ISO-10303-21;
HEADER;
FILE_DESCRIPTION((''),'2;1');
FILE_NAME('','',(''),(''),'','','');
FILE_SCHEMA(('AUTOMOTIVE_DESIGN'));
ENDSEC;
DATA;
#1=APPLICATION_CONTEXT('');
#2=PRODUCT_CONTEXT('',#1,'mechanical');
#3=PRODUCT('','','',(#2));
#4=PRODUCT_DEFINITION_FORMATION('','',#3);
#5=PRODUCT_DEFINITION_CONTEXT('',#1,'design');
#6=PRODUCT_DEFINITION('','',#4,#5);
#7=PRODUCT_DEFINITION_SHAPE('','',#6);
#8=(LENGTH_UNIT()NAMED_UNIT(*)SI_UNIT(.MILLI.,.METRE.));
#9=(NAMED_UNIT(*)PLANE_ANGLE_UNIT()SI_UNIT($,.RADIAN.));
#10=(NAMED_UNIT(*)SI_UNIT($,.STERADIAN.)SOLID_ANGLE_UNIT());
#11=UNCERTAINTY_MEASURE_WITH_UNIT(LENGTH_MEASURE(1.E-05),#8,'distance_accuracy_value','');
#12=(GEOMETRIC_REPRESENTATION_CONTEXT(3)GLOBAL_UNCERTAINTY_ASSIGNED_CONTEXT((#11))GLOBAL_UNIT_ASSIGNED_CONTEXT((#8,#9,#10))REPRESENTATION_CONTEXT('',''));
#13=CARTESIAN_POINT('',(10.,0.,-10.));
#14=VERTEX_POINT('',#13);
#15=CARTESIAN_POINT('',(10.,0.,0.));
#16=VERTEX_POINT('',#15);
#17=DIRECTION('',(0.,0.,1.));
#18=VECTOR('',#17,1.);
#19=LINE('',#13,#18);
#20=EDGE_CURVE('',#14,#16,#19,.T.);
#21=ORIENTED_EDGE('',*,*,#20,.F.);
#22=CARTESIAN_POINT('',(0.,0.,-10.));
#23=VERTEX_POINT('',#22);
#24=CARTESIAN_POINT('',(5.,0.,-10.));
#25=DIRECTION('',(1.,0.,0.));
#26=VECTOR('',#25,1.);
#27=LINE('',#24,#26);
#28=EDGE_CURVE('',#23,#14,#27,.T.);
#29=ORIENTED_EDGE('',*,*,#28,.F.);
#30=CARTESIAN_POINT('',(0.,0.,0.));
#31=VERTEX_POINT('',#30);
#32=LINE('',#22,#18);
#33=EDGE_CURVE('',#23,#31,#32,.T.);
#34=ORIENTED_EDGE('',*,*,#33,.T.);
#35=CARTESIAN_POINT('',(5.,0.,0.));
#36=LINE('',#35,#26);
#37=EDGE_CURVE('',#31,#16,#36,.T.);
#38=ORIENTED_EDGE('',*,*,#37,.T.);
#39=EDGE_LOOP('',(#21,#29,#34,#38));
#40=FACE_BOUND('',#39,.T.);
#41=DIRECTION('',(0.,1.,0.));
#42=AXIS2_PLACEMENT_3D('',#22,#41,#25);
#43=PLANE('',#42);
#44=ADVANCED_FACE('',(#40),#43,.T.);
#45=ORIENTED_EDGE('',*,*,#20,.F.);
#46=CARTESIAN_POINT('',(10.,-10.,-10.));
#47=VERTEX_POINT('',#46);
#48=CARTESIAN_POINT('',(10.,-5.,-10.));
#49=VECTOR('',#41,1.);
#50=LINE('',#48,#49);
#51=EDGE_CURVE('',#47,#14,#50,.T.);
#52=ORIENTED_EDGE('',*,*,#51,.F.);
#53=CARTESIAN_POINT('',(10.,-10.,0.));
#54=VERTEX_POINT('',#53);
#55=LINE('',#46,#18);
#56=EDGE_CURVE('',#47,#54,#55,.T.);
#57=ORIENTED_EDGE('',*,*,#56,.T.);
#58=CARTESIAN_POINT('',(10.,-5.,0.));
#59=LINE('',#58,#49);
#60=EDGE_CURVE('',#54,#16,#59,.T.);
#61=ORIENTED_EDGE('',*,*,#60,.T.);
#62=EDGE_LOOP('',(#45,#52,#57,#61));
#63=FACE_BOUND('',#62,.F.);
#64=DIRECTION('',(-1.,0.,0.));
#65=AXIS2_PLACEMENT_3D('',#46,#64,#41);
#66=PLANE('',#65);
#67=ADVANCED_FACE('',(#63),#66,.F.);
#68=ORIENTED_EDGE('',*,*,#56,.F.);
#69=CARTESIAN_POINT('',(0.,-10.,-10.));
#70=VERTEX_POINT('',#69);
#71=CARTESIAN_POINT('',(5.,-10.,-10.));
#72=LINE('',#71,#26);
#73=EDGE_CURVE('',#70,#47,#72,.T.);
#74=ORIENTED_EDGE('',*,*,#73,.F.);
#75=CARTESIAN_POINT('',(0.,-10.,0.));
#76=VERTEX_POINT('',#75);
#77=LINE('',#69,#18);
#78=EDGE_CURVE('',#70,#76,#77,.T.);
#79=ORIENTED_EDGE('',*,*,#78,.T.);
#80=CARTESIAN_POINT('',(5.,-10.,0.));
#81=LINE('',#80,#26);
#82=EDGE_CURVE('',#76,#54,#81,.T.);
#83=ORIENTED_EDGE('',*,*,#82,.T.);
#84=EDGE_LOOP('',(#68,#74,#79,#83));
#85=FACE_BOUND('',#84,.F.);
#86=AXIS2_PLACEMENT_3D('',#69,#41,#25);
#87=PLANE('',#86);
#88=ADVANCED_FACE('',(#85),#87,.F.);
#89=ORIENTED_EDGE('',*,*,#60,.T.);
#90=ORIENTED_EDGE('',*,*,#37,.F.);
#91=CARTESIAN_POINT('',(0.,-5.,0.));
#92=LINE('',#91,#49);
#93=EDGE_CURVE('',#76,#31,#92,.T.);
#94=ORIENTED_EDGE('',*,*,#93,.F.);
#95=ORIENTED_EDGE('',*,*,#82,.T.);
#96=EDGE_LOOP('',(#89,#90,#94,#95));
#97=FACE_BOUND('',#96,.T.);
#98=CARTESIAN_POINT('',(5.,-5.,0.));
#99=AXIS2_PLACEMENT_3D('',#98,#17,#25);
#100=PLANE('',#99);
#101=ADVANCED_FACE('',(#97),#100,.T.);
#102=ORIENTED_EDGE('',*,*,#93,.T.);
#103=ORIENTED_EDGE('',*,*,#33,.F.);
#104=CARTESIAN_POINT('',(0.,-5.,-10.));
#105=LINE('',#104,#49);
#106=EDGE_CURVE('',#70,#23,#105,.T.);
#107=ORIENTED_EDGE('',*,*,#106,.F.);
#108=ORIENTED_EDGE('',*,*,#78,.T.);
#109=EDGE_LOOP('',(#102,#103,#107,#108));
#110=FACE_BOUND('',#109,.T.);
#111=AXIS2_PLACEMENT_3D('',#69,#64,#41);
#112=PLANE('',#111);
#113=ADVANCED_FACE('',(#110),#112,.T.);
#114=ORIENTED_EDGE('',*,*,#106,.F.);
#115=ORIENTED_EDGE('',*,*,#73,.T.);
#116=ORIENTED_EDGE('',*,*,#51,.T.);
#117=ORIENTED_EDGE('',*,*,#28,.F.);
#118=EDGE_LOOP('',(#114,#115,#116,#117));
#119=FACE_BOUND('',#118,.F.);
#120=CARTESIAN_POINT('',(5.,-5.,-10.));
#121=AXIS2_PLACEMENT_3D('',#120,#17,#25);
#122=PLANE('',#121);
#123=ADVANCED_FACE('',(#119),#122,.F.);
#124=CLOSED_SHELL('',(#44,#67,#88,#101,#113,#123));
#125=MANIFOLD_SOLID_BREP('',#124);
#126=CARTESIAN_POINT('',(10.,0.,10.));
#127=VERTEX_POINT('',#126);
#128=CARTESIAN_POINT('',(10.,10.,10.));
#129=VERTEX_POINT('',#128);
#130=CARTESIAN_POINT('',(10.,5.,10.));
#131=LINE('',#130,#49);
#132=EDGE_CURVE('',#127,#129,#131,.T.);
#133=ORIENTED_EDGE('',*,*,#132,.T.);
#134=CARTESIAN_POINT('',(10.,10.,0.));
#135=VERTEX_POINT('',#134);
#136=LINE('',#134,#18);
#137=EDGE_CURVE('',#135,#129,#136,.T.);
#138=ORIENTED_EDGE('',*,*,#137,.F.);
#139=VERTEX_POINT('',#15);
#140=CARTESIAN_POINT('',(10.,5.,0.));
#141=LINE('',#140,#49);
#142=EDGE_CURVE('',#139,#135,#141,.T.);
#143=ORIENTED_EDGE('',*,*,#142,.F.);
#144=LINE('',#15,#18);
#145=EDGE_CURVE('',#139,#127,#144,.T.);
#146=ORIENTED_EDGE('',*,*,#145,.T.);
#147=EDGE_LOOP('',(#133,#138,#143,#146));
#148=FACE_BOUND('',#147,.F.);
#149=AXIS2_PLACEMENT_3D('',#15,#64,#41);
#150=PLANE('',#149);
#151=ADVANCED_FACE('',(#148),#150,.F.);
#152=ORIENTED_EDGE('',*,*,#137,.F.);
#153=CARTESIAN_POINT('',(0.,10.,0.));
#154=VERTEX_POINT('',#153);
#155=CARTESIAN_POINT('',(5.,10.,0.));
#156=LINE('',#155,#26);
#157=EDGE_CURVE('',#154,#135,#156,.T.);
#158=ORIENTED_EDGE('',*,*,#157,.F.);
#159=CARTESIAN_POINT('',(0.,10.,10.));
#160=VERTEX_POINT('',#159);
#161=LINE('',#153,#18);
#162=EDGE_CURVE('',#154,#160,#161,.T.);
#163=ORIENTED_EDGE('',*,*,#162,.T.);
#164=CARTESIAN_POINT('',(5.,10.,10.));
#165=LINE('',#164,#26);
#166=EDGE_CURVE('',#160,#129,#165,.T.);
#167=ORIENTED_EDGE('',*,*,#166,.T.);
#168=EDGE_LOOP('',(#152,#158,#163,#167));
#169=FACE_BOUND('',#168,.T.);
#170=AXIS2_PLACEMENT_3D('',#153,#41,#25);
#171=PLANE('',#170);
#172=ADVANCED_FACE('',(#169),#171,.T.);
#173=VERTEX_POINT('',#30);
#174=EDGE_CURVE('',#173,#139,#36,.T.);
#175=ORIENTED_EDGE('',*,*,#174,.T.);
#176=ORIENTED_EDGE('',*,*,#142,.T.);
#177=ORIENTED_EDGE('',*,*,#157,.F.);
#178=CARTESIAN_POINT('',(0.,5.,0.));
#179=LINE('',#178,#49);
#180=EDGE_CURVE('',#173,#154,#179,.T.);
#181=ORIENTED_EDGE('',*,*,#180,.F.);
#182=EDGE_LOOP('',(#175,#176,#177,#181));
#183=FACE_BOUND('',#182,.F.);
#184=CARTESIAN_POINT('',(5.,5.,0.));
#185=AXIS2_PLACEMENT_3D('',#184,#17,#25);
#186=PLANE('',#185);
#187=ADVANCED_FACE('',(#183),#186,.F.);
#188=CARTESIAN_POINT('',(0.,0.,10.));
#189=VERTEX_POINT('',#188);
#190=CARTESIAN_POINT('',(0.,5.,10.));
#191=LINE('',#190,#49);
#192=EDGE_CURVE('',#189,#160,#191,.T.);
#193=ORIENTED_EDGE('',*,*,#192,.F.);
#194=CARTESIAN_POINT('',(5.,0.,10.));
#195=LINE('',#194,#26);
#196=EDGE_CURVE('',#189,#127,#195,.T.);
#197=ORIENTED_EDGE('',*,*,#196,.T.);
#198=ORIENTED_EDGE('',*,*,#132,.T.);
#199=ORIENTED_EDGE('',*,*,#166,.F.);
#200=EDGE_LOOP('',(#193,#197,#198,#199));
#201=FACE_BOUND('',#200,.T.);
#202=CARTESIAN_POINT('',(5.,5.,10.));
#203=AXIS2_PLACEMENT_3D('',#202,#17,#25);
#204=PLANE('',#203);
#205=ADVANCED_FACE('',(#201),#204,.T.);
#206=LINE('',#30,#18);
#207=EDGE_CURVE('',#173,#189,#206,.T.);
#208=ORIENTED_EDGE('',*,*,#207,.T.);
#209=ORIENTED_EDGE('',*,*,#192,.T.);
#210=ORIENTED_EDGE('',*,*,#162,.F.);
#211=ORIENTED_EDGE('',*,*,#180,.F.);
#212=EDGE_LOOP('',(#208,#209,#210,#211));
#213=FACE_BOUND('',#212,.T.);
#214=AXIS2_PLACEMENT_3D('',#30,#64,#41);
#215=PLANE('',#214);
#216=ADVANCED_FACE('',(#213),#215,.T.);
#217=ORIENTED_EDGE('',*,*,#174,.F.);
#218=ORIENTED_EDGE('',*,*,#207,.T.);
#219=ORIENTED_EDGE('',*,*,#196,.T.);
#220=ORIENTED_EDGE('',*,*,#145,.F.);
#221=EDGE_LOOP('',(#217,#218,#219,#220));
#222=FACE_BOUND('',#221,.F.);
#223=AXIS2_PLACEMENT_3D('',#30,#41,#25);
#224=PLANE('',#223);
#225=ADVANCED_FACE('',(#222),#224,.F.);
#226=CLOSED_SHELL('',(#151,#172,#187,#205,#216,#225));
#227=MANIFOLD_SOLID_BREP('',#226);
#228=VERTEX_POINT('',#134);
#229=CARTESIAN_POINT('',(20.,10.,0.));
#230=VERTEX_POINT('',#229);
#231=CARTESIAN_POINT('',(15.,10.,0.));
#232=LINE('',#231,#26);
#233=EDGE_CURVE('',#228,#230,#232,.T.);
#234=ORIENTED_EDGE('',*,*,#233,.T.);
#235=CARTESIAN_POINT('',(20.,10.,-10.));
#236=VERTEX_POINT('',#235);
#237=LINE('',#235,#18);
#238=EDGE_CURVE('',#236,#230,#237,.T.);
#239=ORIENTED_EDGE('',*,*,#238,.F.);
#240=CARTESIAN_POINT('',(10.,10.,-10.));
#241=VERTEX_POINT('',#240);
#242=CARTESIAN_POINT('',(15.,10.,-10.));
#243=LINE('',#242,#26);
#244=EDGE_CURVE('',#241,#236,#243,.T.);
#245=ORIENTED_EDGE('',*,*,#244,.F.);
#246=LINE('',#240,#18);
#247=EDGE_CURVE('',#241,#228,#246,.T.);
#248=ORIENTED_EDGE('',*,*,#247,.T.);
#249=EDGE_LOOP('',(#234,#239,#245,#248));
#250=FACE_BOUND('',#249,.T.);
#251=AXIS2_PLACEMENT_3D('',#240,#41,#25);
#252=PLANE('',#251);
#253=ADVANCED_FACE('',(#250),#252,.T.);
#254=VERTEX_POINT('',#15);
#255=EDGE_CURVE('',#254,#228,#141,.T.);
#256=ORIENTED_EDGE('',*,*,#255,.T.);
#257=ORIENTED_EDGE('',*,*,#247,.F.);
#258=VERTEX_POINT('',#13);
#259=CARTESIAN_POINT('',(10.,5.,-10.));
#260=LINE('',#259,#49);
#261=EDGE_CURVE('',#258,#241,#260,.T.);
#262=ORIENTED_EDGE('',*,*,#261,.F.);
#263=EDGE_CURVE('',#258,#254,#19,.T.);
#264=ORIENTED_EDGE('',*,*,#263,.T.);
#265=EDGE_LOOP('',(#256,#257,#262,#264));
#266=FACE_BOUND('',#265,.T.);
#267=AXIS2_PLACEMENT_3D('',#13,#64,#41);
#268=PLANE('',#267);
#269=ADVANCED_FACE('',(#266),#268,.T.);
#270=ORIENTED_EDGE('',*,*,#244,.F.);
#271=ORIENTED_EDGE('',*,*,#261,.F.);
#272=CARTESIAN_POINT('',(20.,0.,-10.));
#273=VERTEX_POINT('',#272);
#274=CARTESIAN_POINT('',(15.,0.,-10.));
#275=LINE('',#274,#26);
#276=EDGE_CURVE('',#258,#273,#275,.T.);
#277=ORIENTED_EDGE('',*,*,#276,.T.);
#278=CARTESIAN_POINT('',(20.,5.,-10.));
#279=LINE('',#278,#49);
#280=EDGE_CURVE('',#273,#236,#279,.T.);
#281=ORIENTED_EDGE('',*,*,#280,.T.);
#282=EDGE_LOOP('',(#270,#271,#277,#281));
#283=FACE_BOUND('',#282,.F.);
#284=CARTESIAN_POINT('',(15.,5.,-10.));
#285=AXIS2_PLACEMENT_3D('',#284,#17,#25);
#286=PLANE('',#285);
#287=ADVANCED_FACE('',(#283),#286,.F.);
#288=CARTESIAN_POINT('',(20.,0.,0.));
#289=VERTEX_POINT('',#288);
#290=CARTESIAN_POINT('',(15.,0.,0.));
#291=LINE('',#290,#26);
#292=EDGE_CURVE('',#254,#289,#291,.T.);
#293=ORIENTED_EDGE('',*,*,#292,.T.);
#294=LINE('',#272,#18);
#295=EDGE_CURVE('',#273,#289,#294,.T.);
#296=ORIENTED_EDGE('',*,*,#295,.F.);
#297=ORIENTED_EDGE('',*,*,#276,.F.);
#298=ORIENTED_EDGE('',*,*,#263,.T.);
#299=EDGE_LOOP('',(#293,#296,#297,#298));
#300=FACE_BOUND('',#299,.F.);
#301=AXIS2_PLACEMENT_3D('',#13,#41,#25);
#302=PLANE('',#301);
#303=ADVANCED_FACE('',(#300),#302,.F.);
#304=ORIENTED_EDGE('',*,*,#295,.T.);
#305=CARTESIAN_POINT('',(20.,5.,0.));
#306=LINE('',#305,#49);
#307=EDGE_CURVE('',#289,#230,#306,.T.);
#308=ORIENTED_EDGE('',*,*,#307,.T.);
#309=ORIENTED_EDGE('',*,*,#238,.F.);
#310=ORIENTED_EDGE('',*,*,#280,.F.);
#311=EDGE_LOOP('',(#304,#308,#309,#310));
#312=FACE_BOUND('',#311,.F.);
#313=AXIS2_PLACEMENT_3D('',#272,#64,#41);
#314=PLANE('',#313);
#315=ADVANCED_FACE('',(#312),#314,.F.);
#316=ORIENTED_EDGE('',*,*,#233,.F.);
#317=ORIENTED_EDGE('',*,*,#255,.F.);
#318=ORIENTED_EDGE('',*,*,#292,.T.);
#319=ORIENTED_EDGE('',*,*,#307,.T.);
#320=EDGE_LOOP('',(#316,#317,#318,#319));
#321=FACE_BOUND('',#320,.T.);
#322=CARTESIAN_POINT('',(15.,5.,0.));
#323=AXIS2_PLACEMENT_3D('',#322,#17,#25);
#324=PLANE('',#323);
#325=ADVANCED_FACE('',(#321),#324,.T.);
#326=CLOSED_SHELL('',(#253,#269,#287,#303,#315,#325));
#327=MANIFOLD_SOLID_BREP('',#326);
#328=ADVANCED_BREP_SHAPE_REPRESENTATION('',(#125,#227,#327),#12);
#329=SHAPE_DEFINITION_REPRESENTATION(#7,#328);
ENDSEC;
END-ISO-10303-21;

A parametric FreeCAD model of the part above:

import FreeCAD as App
import Part
import Sketcher

V = App.Vector
Q = App.Units.Quantity

doc = App.newDocument("Part")
body = doc.addObject("PartDesign::Body", "Body")

# Sketch on XY plane
sketch1 = doc.addObject("Sketcher::SketchObject", "Sketch")
body.addObject(sketch1)
sketch1.AttachmentSupport = (doc.XY_Plane, [""])
sketch1.MapMode = "FlatFace"
sketch1.addGeometry([
    Part.LineSegment(V(0, 10, 0), V(0, 0, 0)),
    Part.LineSegment(V(0, 0, 0), V(10, 0, 0)),
    Part.LineSegment(V(10, 0, 0), V(10, 10, 0)),
    Part.LineSegment(V(10, 10, 0), V(0, 10, 0)),
], False)
sketch1.addConstraint([
    Sketcher.Constraint("Coincident", 0, 2, 1, 1),
    Sketcher.Constraint("Coincident", 1, 2, 2, 1),
    Sketcher.Constraint("Coincident", 2, 2, 3, 1),
    Sketcher.Constraint("Coincident", 3, 2, 0, 1),
    Sketcher.Constraint("Vertical", 0),
    Sketcher.Constraint("Horizontal", 1),
    Sketcher.Constraint("Vertical", 2),
    Sketcher.Constraint("Horizontal", 3),
    Sketcher.Constraint("Coincident", 0, 2, -1, 1),
    Sketcher.Constraint("Equal", 3, 0),
    Sketcher.Constraint("DistanceX", 1, 1, 1, 2, Q("10 mm")),
])
pad1 = doc.addObject("PartDesign::Pad", "Pad")
body.addObject(pad1)
pad1.Profile = sketch1
pad1.Length = 10
body2 = doc.addObject("PartDesign::Body", "Body001")

# Sketch on XY plane
sketch2 = doc.addObject("Sketcher::SketchObject", "Sketch001")
body2.addObject(sketch2)
sketch2.AttachmentSupport = (doc.getObject("XY_Plane001"), [""])
sketch2.MapMode = "FlatFace"
sketch2.AttachmentOffset = App.Placement(V(0, 0, -10), App.Rotation())
sketch2.addGeometry([
    Part.LineSegment(V(0, 0, 0), V(0, -10, 0)),
    Part.LineSegment(V(0, -10, 0), V(10, -10, 0)),
    Part.LineSegment(V(10, -10, 0), V(10, 0, 0)),
    Part.LineSegment(V(10, 0, 0), V(0, 0, 0)),
], False)
sketch2.addConstraint([
    Sketcher.Constraint("Coincident", 0, 2, 1, 1),
    Sketcher.Constraint("Coincident", 1, 2, 2, 1),
    Sketcher.Constraint("Coincident", 2, 2, 3, 1),
    Sketcher.Constraint("Coincident", 3, 2, 0, 1),
    Sketcher.Constraint("Vertical", 0),
    Sketcher.Constraint("Horizontal", 1),
    Sketcher.Constraint("Vertical", 2),
    Sketcher.Constraint("Horizontal", 3),
    Sketcher.Constraint("Coincident", 3, 2, -1, 1),
    Sketcher.Constraint("Equal", 3, 0),
    Sketcher.Constraint("DistanceX", 1, 1, 1, 2, Q("10 mm")),
])
pad2 = doc.addObject("PartDesign::Pad", "Pad001")
body2.addObject(pad2)
pad2.Profile = sketch2
pad2.Length = 10
body3 = doc.addObject("PartDesign::Body", "Body002")

# Sketch on XY plane
sketch3 = doc.addObject("Sketcher::SketchObject", "Sketch002")
body3.addObject(sketch3)
sketch3.AttachmentSupport = (doc.getObject("XY_Plane002"), [""])
sketch3.MapMode = "FlatFace"
sketch3.AttachmentOffset = App.Placement(V(0, 0, -10), App.Rotation())
sketch3.addGeometry([
    Part.LineSegment(V(10, 10, 0), V(10, 0, 0)),
    Part.LineSegment(V(10, 0, 0), V(20, 0, 0)),
    Part.LineSegment(V(20, 0, 0), V(20, 10, 0)),
    Part.LineSegment(V(20, 10, 0), V(10, 10, 0)),
], False)
sketch3.addConstraint([
    Sketcher.Constraint("Coincident", 0, 2, 1, 1),
    Sketcher.Constraint("Coincident", 1, 2, 2, 1),
    Sketcher.Constraint("Coincident", 2, 2, 3, 1),
    Sketcher.Constraint("Coincident", 3, 2, 0, 1),
    Sketcher.Constraint("Vertical", 0),
    Sketcher.Constraint("Horizontal", 1),
    Sketcher.Constraint("Vertical", 2),
    Sketcher.Constraint("Horizontal", 3),
    Sketcher.Constraint("PointOnObject", 0, 2, -1),
    Sketcher.Constraint("Equal", 3, 0),
    Sketcher.Constraint("DistanceX", 1, 1, 1, 2, Q("10 mm")),
    Sketcher.Constraint("DistanceX", -1, 1, 0, 2, Q("10 mm")),
])
pad3 = doc.addObject("PartDesign::Pad", "Pad002")
body3.addObject(pad3)
pad3.Profile = sketch3
pad3.Length = 10

doc.recompute()
